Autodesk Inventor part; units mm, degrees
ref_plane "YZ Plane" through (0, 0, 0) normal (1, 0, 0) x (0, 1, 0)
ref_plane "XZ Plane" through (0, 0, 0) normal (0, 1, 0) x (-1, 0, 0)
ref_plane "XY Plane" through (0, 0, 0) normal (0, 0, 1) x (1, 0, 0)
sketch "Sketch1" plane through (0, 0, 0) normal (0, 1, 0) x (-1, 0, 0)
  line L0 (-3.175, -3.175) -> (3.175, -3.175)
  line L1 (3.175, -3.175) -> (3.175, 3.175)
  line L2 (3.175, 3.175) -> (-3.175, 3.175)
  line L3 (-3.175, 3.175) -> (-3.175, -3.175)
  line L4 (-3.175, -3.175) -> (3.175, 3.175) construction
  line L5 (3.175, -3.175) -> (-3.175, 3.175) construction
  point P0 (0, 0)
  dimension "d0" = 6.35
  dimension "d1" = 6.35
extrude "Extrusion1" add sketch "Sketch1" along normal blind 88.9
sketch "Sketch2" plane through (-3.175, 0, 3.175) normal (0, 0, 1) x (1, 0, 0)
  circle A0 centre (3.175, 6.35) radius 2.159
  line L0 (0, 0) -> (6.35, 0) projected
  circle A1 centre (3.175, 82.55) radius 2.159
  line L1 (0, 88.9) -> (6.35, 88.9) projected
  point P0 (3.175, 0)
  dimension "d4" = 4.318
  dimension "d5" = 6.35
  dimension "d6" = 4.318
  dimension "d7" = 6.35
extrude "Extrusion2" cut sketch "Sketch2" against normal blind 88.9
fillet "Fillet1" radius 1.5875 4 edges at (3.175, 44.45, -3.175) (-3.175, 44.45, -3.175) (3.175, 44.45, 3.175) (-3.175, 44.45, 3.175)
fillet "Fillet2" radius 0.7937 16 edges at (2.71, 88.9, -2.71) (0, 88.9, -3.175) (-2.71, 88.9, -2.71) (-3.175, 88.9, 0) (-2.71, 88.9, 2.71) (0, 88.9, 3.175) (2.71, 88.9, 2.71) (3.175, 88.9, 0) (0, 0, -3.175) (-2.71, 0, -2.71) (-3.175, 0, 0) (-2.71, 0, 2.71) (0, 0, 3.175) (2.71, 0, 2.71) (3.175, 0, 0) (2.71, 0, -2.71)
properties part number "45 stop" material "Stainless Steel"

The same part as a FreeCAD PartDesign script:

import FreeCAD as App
import Part
import Sketcher

V = App.Vector
Q = App.Units.Quantity


def edges_at(feature, points):
    """Names of the edges that pass closest to the given points."""
    edges = feature.Shape.Edges
    near = lambda p: min(range(len(edges)), key=lambda i: edges[i].distToShape(Part.Vertex(*p))[0])
    return sorted({f"Edge{near(p) + 1}" for p in points})


def add_polygon(sketch, points):
    """Adds a closed chain of lines whose ends are joined by coincident constraints."""
    first, n = sketch.GeometryCount, len(points)
    for a, b in zip(points, points[1:] + points[:1]):
        sketch.addGeometry(Part.LineSegment(App.Vector(*a, 0), App.Vector(*b, 0)), False)
    for i in range(n):
        sketch.addConstraint(Sketcher.Constraint("Coincident", first + i, 2, first + (i + 1) % n, 1))

doc = App.newDocument("Part")
body = doc.addObject("PartDesign::Body", "Body")

# Sketch on XZ plane
sketch1 = doc.addObject("Sketcher::SketchObject", "Sketch")
body.addObject(sketch1)
sketch1.AttachmentSupport = (doc.XZ_Plane, [""])
sketch1.MapMode = "FlatFace"
add_polygon(sketch1, [(3.175, 3.175), (3.175, -3.175), (-3.175, -3.175), (-3.175, 3.175)])  # lines 0-3
sketch1.addConstraint([
    Sketcher.Constraint("Vertical", 0),
    Sketcher.Constraint("Horizontal", 1),
    Sketcher.Constraint("Vertical", 2),
    Sketcher.Constraint("Horizontal", 3),
    Sketcher.Constraint("Symmetric", 0, 2, 2, 2, -1, 1),
    Sketcher.Constraint("Equal", 3, 0),
    Sketcher.Constraint("DistanceX", 1, 2, 1, 1, Q("0.25 in")),
])
pad1 = doc.addObject("PartDesign::Pad", "Pad")
body.addObject(pad1)
pad1.Profile = sketch1
pad1.Length = Q("3.5 in")
pad1.Reversed = True

# Sketch on XY plane
sketch2 = doc.addObject("Sketcher::SketchObject", "Sketch001")
body.addObject(sketch2)
sketch2.AttachmentSupport = (doc.XY_Plane, [""])
sketch2.MapMode = "FlatFace"
sketch2.AttachmentOffset = App.Placement(V(0, 0, 0.125 * 25.4), App.Rotation())
sketch2.addGeometry([
    Part.Circle(V(0, 6.35, 0), V(0, 0, 1), 2.159),
    Part.Circle(V(0, 82.55, 0), V(0, 0, 1), 2.159),
], False)
sketch2.addConstraint([
    Sketcher.Constraint("Equal", 0, 1),
    Sketcher.Constraint("PointOnObject", 0, 3, -2),
    Sketcher.Constraint("PointOnObject", 1, 3, -2),
    Sketcher.Constraint("Diameter", 0, Q("0.17 in")),
    Sketcher.Constraint("DistanceY", -1, 1, 0, 3, Q("0.25 in")),
    Sketcher.Constraint("DistanceY", 0, 3, 1, 3, Q("3 in")),
])
pocket1 = doc.addObject("PartDesign::Pocket", "Pocket")
body.addObject(pocket1)
pocket1.Profile = sketch2
pocket1.Length = Q("3.5 in")
doc.recompute()

fillet = doc.addObject("PartDesign::Fillet", "Fillet")
body.addObject(fillet)
fillet.Base = (pocket1, edges_at(pocket1, [
    (3.175, 44.45, -3.175),
    (-3.175, 44.45, -3.175),
    (3.175, 44.45, 3.175),
    (-3.175, 44.45, 3.175),
]))
fillet.Radius = Q("0.0625 in")
doc.recompute()

fillet2 = doc.addObject("PartDesign::Fillet", "Fillet001")
body.addObject(fillet2)
fillet2.Base = (fillet, edges_at(fillet, [
    (2.71, 88.9, -2.71),
    (0, 88.9, -3.175),
    (-2.71, 88.9, -2.71),
    (-3.175, 88.9, 0),
    (-2.71, 88.9, 2.71),
    (0, 88.9, 3.175),
    (2.71, 88.9, 2.71),
    (3.175, 88.9, 0),
    (0, 0, -3.175),
    (-2.71, 0, -2.71),
    (-3.175, 0, 0),
    (-2.71, 0, 2.71),
    (0, 0, 3.175),
    (2.71, 0, 2.71),
    (3.175, 0, 0),
    (2.71, 0, -2.71),
]))
fillet2.Radius = Q("0.031248 in")

doc.recompute()
